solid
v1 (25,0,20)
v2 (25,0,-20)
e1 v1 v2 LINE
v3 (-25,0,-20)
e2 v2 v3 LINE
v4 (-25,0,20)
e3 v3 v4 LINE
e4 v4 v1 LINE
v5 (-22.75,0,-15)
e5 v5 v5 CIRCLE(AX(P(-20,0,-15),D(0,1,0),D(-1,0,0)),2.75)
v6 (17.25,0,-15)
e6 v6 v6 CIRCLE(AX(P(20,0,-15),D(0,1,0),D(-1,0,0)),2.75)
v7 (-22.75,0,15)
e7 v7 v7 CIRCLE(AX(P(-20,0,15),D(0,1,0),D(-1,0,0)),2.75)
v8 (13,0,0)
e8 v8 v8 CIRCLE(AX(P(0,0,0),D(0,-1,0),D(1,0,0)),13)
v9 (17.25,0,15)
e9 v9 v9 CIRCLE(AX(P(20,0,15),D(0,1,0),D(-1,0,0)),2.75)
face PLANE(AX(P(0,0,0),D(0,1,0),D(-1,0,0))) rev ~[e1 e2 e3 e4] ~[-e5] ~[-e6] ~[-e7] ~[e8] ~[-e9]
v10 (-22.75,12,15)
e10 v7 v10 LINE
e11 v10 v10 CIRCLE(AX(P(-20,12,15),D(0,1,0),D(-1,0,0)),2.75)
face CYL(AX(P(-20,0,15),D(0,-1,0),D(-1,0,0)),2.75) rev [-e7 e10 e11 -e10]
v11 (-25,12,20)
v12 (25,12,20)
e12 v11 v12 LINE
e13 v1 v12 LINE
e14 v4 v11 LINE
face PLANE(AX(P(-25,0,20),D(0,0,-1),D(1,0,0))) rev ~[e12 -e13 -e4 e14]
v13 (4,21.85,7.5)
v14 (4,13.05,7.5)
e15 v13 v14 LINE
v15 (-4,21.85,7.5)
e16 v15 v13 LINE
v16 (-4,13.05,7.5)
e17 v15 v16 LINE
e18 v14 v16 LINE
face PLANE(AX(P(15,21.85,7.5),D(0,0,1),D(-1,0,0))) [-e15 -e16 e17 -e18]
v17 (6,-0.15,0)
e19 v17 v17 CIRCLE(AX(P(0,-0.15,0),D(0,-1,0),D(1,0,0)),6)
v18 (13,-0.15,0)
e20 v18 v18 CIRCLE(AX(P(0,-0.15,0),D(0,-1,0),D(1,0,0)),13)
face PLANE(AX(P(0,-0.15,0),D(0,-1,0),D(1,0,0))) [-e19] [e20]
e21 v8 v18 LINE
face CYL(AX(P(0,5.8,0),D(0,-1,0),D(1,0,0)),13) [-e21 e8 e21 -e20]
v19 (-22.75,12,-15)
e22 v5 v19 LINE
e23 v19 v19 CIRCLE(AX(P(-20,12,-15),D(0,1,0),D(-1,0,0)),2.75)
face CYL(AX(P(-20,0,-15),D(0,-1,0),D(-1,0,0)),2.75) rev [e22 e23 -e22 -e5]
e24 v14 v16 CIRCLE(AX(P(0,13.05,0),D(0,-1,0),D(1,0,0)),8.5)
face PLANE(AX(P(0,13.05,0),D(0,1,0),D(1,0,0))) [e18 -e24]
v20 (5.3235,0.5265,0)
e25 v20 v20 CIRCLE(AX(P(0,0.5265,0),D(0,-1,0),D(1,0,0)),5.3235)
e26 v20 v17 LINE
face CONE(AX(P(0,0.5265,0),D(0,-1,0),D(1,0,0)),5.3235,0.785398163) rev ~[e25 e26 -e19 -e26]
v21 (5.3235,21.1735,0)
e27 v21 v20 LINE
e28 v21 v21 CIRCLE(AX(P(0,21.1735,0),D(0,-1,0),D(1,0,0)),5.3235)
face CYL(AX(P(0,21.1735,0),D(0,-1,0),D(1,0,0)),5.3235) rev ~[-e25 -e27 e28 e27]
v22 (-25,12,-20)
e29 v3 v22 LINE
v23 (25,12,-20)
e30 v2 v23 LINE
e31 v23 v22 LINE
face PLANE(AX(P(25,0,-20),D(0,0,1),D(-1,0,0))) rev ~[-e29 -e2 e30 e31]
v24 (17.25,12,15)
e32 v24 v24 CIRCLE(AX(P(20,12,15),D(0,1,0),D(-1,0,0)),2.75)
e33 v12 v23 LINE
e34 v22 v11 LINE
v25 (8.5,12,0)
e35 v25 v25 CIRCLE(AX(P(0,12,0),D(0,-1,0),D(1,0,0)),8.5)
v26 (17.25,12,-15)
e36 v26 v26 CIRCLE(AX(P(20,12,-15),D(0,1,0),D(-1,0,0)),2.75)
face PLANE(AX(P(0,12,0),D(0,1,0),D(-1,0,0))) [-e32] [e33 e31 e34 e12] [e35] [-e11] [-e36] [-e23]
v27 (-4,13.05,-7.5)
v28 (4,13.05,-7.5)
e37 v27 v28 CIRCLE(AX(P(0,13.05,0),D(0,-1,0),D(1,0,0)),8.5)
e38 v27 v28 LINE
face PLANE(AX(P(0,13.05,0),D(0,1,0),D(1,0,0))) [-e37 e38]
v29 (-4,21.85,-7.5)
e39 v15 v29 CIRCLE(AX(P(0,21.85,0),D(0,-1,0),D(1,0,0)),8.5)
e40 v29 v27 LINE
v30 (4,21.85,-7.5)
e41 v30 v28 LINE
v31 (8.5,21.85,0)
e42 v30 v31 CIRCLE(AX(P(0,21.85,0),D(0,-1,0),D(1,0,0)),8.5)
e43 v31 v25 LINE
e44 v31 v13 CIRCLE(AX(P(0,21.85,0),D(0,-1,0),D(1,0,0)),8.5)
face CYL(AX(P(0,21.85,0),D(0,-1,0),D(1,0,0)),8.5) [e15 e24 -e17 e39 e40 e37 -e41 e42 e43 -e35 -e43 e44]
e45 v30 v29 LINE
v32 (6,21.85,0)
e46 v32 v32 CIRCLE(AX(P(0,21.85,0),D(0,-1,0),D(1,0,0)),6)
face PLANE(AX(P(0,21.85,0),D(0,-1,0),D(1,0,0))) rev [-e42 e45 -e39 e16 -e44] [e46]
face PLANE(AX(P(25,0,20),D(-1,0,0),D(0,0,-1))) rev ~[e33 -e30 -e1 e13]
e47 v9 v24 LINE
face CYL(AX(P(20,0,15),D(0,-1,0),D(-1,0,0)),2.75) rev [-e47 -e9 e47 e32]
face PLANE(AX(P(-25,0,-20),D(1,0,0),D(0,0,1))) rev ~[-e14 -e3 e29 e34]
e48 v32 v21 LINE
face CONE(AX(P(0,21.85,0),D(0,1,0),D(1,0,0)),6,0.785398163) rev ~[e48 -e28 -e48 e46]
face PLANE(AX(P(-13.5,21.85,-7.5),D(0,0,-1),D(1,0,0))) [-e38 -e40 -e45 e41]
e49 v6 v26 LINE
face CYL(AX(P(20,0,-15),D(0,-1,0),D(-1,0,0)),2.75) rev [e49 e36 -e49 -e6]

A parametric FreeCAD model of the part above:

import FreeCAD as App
import Part
import Sketcher

V = App.Vector
Q = App.Units.Quantity

doc = App.newDocument("Part")
body = doc.addObject("PartDesign::Body", "Body")

# Sketch on XZ plane
sketch1 = doc.addObject("Sketcher::SketchObject", "Sketch")
body.addObject(sketch1)
sketch1.AttachmentSupport = (doc.XZ_Plane, [""])
sketch1.MapMode = "FlatFace"
sketch1.addGeometry([
    Part.LineSegment(V(-25, -20, 0), V(-25, 20, 0)),  # 0
    Part.LineSegment(V(-25, 20, 0), V(25, 20, 0)),  # 1
    Part.LineSegment(V(25, 20, 0), V(25, -20, 0)),  # 2
    Part.LineSegment(V(25, -20, 0), V(-25, -20, 0)),  # 3
    Part.Circle(V(20, -15, 0), V(0, 0, 1), 2.8),  # 4
    Part.Circle(V(-20, -15, 0), V(0, 0, 1), 2.8),  # 5
    Part.Circle(V(20, 15, 0), V(0, 0, 1), 2.8),  # 6
    Part.Circle(V(-20, 15, 0), V(0, 0, 1), 2.8),  # 7
], False)
sketch1.addConstraint([
    Sketcher.Constraint("Coincident", 0, 2, 1, 1),
    Sketcher.Constraint("Coincident", 1, 2, 2, 1),
    Sketcher.Constraint("Coincident", 2, 2, 3, 1),
    Sketcher.Constraint("Coincident", 3, 2, 0, 1),
    Sketcher.Constraint("Vertical", 0),
    Sketcher.Constraint("Horizontal", 1),
    Sketcher.Constraint("Vertical", 2),
    Sketcher.Constraint("Horizontal", 3),
    Sketcher.Constraint("Equal", 4, 5),
    Sketcher.Constraint("Equal", 5, 6),
    Sketcher.Constraint("Equal", 6, 7),
    Sketcher.Constraint("Symmetric", 5, 3, 6, 3, -1, 1),
    Sketcher.Constraint("Symmetric", 4, 3, 7, 3, -1, 1),
    Sketcher.Constraint("Symmetric", 0, 2, 2, 2, -1, 1),
    Sketcher.Constraint("Symmetric", 4, 3, 5, 3, -2),
    Sketcher.Constraint("Diameter", 4, Q("5.5 mm")),
    Sketcher.Constraint("DistanceX", 1, 1, 1, 2, Q("50 mm")),
    Sketcher.Constraint("DistanceY", 0, 1, 0, 2, Q("40 mm")),
    Sketcher.Constraint("DistanceX", -1, 1, 4, 3, Q("20 mm")),
    Sketcher.Constraint("DistanceY", 4, 3, -1, 1, Q("15 mm")),
])
pad1 = doc.addObject("PartDesign::Pad", "Pad")
body.addObject(pad1)
pad1.Profile = sketch1
pad1.Length = 12
pad1.Reversed = True

# Sketch on XY plane
sketch2 = doc.addObject("Sketcher::SketchObject", "Sketch001")
body.addObject(sketch2)
sketch2.AttachmentSupport = (doc.XY_Plane, [""])
sketch2.MapMode = "FlatFace"
sketch2.addGeometry([
    Part.LineSegment(V(0, 21.9, 0), V(0, -0.1, 0)),  # 0
    Part.LineSegment(V(0, -0.1, 0), V(13, -0.1, 0)),  # 1
    Part.LineSegment(V(13, -0.1, 0), V(13, 5.8, 0)),  # 2
    Part.LineSegment(V(13, 5.8, 0), V(8.5, 5.8, 0)),  # 3
    Part.LineSegment(V(8.5, 5.8, 0), V(8.5, 21.9, 0)),  # 4
    Part.LineSegment(V(8.5, 21.9, 0), V(0, 21.9, 0)),  # 5
], False)
sketch2.addConstraint([
    Sketcher.Constraint("Coincident", 0, 2, 1, 1),
    Sketcher.Constraint("Coincident", 1, 2, 2, 1),
    Sketcher.Constraint("Coincident", 2, 2, 3, 1),
    Sketcher.Constraint("Coincident", 3, 2, 4, 1),
    Sketcher.Constraint("Coincident", 4, 2, 5, 1),
    Sketcher.Constraint("Coincident", 5, 2, 0, 1),
    Sketcher.Constraint("Vertical", 0),
    Sketcher.Constraint("Horizontal", 1),
    Sketcher.Constraint("Vertical", 2),
    Sketcher.Constraint("Horizontal", 3),
    Sketcher.Constraint("Vertical", 4),
    Sketcher.Constraint("Horizontal", 5),
    Sketcher.Constraint("PointOnObject", 0, 2, -2),
    Sketcher.Constraint("DistanceX", 1, 1, 1, 2, Q("13 mm")),
    Sketcher.Constraint("DistanceY", 0, 2, 0, 1, Q("22 mm")),
    Sketcher.Constraint("DistanceX", 3, 2, 3, 1, Q("4.5 mm")),
    Sketcher.Constraint("DistanceY", 2, 1, 2, 2, Q("5.95 mm")),
    Sketcher.Constraint("DistanceY", -1, 1, 2, 2, Q("5.8 mm")),
])
revolution = doc.addObject("PartDesign::Revolution", "Revolution")
body.addObject(revolution)
revolution.Profile = sketch2
revolution.ReferenceAxis = (sketch2, ["V_Axis"])
revolution.Angle = 360

# Sketch on XZ plane
sketch3 = doc.addObject("Sketcher::SketchObject", "Sketch002")
body.addObject(sketch3)
sketch3.AttachmentSupport = (doc.XZ_Plane, [""])
sketch3.MapMode = "FlatFace"
sketch3.AttachmentOffset = App.Placement(V(0, 0, -21.85), App.Rotation())
sketch3.addGeometry([
    Part.LineSegment(V(-15, -15, 0), V(-15, 15, 0)),  # 0
    Part.LineSegment(V(-15, 15, 0), V(15, 15, 0)),  # 1
    Part.LineSegment(V(15, 15, 0), V(15, 8, 0)),  # 2
    Part.LineSegment(V(15, 8, 0), V(-14, 8, 0)),  # 3
    Part.LineSegment(V(-14, 8, 0), V(-14, -8, 0)),  # 4
    Part.LineSegment(V(-14, -8, 0), V(15, -8, 0)),  # 5
    Part.LineSegment(V(15, -8, 0), V(15, -15, 0)),  # 6
    Part.LineSegment(V(15, -15, 0), V(-15, -15, 0)),  # 7
], False)
sketch3.addConstraint([
    Sketcher.Constraint("Coincident", 0, 2, 1, 1),
    Sketcher.Constraint("Coincident", 1, 2, 2, 1),
    Sketcher.Constraint("Coincident", 2, 2, 3, 1),
    Sketcher.Constraint("Coincident", 3, 2, 4, 1),
    Sketcher.Constraint("Coincident", 4, 2, 5, 1),
    Sketcher.Constraint("Coincident", 5, 2, 6, 1),
    Sketcher.Constraint("Coincident", 6, 2, 7, 1),
    Sketcher.Constraint("Coincident", 7, 2, 0, 1),
    Sketcher.Constraint("Vertical", 0),
    Sketcher.Constraint("Horizontal", 1),
    Sketcher.Constraint("Vertical", 2),
    Sketcher.Constraint("Horizontal", 3),
    Sketcher.Constraint("Vertical", 4),
    Sketcher.Constraint("Horizontal", 5),
    Sketcher.Constraint("Vertical", 6),
    Sketcher.Constraint("Horizontal", 7),
    Sketcher.Constraint("Symmetric", 0, 2, 6, 2, -1, 1),
    Sketcher.Constraint("Symmetric", 2, 2, 5, 2, -1),
    Sketcher.Constraint("Equal", 7, 0),
    Sketcher.Constraint("DistanceX", 1, 1, 1, 2, Q("30 mm")),
    Sketcher.Constraint("DistanceY", 4, 2, 4, 1, Q("15 mm")),
    Sketcher.Constraint("DistanceX", 3, 2, 3, 1, Q("28.5 mm")),
])
pocket1 = doc.addObject("PartDesign::Pocket", "Pocket")
body.addObject(pocket1)
pocket1.Profile = sketch3
pocket1.Length = 17.6
pocket1.Midplane = True

# Sketch on XY plane
sketch4 = doc.addObject("Sketcher::SketchObject", "Sketch003")
body.addObject(sketch4)
sketch4.AttachmentSupport = (doc.XY_Plane, [""])
sketch4.MapMode = "FlatFace"
sketch4.addGeometry([
    Part.LineSegment(V(0, 21.9, 0), V(0, -0.1, 0)),  # 0
    Part.LineSegment(V(0, -0.1, 0), V(6, -0.1, 0)),  # 1
    Part.LineSegment(V(6, -0.1, 0), V(5.3, 0.5, 0)),  # 2
    Part.LineSegment(V(5.3, 0.5, 0), V(5.3, 21.2, 0)),  # 3
    Part.LineSegment(V(5.3, 21.2, 0), V(6, 21.9, 0)),  # 4
    Part.LineSegment(V(6, 21.9, 0), V(0, 21.9, 0)),  # 5
], False)
sketch4.addConstraint([
    Sketcher.Constraint("Coincident", 0, 2, 1, 1),
    Sketcher.Constraint("Coincident", 1, 2, 2, 1),
    Sketcher.Constraint("Coincident", 2, 2, 3, 1),
    Sketcher.Constraint("Coincident", 3, 2, 4, 1),
    Sketcher.Constraint("Coincident", 4, 2, 5, 1),
    Sketcher.Constraint("Coincident", 5, 2, 0, 1),
    Sketcher.Constraint("Vertical", 0),
    Sketcher.Constraint("Horizontal", 1),
    Sketcher.Constraint("Vertical", 3),
    Sketcher.Constraint("Horizontal", 5),
    Sketcher.Constraint("PointOnObject", 0, 2, -2),
    Sketcher.Constraint("Perpendicular", 2, 4),
    Sketcher.Constraint("Vertical", 1, 2, 4, 2),
    Sketcher.Constraint("Equal", 2, 4),
    Sketcher.Constraint("DistanceX", 1, 1, 1, 2, Q("6 mm")),
    Sketcher.Constraint("DistanceY", 0, 2, 0, 1, Q("22 mm")),
    Sketcher.Constraint("DistanceY", 3, 1, 3, 2, Q("20.647 mm")),
    Sketcher.Constraint("DistanceY", 0, 2, -1, 1, Q("0.15 mm")),
])
groove = doc.addObject("PartDesign::Groove", "Groove")
body.addObject(groove)
groove.Profile = sketch4
groove.ReferenceAxis = (sketch4, ["V_Axis"])
groove.Angle = 360

doc.recompute()
